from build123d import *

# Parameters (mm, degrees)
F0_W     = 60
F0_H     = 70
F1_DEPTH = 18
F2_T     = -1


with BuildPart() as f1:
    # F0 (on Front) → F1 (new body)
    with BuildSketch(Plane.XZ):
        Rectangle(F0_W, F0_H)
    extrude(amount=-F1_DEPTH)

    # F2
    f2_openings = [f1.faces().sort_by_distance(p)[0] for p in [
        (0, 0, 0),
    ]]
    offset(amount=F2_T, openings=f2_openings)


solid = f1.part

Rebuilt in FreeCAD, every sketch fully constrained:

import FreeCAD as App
import Part
import Sketcher
from FreeCAD import Vector
Q = App.Units.Quantity


def faces_at(feature, points):
    """Names of the faces that lie closest to the given points."""
    faces = feature.Shape.Faces
    near = lambda p: min(range(len(faces)), key=lambda i: faces[i].distToShape(Part.Vertex(*p))[0])
    return sorted({f"Face{near(p) + 1}" for p in points})

doc = App.newDocument("Part")
params = doc.addObject("Spreadsheet::Sheet", "Params")
for row, (alias, value) in enumerate([
    ("sketch1_width", "60 mm"),
    ("sketch1_height", "70 mm"),
    ("pad1_length", "18 mm"),
    ("thickness_wall", "1 mm"),
], start=1):
    params.set(f"A{row}", alias)
    params.set(f"B{row}", "=" + value)
    params.setAlias(f"B{row}", alias)

body = doc.addObject("PartDesign::Body", "Body")

# Sketch on XZ plane
sketch1 = doc.addObject("Sketcher::SketchObject", "Sketch")
body.addObject(sketch1)
sketch1.AttachmentSupport = (doc.XZ_Plane, [""])
sketch1.MapMode = "FlatFace"
sketch1.addGeometry(Part.LineSegment(Vector(-30, 35, 0), Vector(-30, -35, 0)), False)
sketch1.addGeometry(Part.LineSegment(Vector(-30, -35, 0), Vector(30, -35, 0)), False)
sketch1.addGeometry(Part.LineSegment(Vector(30, -35, 0), Vector(30, 35, 0)), False)
sketch1.addGeometry(Part.LineSegment(Vector(30, 35, 0), Vector(-30, 35, 0)), False)
sketch1.addConstraint(Sketcher.Constraint("Coincident", 0, 2, 1, 1))
sketch1.addConstraint(Sketcher.Constraint("Coincident", 1, 2, 2, 1))
sketch1.addConstraint(Sketcher.Constraint("Coincident", 2, 2, 3, 1))
sketch1.addConstraint(Sketcher.Constraint("Coincident", 3, 2, 0, 1))
sketch1.addConstraint(Sketcher.Constraint("Vertical", 0))
sketch1.addConstraint(Sketcher.Constraint("Horizontal", 1))
sketch1.addConstraint(Sketcher.Constraint("Vertical", 2))
sketch1.addConstraint(Sketcher.Constraint("Horizontal", 3))
sketch1.addConstraint(Sketcher.Constraint("Symmetric", 0, 2, 2, 2, -1, 1))
sketch1.addConstraint(Sketcher.Constraint("DistanceX", 1, 1, 1, 2, Q("60 mm")))
sketch1.addConstraint(Sketcher.Constraint("DistanceY", 0, 2, 0, 1, Q("70 mm")))
sketch1.setExpression("Constraints[9]", "Params.sketch1_width")
sketch1.setExpression("Constraints[10]", "Params.sketch1_height")
pad1 = doc.addObject("PartDesign::Pad", "Pad")
body.addObject(pad1)
pad1.Profile = sketch1
pad1.setExpression("Length", "Params.pad1_length")
pad1.Reversed = True
doc.recompute()

thickness = doc.addObject("PartDesign::Thickness", "Thickness")
body.addObject(thickness)
thickness.Base = (pad1, faces_at(pad1, [(0, 0, 0)]))
thickness.setExpression("Value", "Params.thickness_wall")
thickness.Reversed = True
thickness.Join = "Arc"

doc.recompute()
